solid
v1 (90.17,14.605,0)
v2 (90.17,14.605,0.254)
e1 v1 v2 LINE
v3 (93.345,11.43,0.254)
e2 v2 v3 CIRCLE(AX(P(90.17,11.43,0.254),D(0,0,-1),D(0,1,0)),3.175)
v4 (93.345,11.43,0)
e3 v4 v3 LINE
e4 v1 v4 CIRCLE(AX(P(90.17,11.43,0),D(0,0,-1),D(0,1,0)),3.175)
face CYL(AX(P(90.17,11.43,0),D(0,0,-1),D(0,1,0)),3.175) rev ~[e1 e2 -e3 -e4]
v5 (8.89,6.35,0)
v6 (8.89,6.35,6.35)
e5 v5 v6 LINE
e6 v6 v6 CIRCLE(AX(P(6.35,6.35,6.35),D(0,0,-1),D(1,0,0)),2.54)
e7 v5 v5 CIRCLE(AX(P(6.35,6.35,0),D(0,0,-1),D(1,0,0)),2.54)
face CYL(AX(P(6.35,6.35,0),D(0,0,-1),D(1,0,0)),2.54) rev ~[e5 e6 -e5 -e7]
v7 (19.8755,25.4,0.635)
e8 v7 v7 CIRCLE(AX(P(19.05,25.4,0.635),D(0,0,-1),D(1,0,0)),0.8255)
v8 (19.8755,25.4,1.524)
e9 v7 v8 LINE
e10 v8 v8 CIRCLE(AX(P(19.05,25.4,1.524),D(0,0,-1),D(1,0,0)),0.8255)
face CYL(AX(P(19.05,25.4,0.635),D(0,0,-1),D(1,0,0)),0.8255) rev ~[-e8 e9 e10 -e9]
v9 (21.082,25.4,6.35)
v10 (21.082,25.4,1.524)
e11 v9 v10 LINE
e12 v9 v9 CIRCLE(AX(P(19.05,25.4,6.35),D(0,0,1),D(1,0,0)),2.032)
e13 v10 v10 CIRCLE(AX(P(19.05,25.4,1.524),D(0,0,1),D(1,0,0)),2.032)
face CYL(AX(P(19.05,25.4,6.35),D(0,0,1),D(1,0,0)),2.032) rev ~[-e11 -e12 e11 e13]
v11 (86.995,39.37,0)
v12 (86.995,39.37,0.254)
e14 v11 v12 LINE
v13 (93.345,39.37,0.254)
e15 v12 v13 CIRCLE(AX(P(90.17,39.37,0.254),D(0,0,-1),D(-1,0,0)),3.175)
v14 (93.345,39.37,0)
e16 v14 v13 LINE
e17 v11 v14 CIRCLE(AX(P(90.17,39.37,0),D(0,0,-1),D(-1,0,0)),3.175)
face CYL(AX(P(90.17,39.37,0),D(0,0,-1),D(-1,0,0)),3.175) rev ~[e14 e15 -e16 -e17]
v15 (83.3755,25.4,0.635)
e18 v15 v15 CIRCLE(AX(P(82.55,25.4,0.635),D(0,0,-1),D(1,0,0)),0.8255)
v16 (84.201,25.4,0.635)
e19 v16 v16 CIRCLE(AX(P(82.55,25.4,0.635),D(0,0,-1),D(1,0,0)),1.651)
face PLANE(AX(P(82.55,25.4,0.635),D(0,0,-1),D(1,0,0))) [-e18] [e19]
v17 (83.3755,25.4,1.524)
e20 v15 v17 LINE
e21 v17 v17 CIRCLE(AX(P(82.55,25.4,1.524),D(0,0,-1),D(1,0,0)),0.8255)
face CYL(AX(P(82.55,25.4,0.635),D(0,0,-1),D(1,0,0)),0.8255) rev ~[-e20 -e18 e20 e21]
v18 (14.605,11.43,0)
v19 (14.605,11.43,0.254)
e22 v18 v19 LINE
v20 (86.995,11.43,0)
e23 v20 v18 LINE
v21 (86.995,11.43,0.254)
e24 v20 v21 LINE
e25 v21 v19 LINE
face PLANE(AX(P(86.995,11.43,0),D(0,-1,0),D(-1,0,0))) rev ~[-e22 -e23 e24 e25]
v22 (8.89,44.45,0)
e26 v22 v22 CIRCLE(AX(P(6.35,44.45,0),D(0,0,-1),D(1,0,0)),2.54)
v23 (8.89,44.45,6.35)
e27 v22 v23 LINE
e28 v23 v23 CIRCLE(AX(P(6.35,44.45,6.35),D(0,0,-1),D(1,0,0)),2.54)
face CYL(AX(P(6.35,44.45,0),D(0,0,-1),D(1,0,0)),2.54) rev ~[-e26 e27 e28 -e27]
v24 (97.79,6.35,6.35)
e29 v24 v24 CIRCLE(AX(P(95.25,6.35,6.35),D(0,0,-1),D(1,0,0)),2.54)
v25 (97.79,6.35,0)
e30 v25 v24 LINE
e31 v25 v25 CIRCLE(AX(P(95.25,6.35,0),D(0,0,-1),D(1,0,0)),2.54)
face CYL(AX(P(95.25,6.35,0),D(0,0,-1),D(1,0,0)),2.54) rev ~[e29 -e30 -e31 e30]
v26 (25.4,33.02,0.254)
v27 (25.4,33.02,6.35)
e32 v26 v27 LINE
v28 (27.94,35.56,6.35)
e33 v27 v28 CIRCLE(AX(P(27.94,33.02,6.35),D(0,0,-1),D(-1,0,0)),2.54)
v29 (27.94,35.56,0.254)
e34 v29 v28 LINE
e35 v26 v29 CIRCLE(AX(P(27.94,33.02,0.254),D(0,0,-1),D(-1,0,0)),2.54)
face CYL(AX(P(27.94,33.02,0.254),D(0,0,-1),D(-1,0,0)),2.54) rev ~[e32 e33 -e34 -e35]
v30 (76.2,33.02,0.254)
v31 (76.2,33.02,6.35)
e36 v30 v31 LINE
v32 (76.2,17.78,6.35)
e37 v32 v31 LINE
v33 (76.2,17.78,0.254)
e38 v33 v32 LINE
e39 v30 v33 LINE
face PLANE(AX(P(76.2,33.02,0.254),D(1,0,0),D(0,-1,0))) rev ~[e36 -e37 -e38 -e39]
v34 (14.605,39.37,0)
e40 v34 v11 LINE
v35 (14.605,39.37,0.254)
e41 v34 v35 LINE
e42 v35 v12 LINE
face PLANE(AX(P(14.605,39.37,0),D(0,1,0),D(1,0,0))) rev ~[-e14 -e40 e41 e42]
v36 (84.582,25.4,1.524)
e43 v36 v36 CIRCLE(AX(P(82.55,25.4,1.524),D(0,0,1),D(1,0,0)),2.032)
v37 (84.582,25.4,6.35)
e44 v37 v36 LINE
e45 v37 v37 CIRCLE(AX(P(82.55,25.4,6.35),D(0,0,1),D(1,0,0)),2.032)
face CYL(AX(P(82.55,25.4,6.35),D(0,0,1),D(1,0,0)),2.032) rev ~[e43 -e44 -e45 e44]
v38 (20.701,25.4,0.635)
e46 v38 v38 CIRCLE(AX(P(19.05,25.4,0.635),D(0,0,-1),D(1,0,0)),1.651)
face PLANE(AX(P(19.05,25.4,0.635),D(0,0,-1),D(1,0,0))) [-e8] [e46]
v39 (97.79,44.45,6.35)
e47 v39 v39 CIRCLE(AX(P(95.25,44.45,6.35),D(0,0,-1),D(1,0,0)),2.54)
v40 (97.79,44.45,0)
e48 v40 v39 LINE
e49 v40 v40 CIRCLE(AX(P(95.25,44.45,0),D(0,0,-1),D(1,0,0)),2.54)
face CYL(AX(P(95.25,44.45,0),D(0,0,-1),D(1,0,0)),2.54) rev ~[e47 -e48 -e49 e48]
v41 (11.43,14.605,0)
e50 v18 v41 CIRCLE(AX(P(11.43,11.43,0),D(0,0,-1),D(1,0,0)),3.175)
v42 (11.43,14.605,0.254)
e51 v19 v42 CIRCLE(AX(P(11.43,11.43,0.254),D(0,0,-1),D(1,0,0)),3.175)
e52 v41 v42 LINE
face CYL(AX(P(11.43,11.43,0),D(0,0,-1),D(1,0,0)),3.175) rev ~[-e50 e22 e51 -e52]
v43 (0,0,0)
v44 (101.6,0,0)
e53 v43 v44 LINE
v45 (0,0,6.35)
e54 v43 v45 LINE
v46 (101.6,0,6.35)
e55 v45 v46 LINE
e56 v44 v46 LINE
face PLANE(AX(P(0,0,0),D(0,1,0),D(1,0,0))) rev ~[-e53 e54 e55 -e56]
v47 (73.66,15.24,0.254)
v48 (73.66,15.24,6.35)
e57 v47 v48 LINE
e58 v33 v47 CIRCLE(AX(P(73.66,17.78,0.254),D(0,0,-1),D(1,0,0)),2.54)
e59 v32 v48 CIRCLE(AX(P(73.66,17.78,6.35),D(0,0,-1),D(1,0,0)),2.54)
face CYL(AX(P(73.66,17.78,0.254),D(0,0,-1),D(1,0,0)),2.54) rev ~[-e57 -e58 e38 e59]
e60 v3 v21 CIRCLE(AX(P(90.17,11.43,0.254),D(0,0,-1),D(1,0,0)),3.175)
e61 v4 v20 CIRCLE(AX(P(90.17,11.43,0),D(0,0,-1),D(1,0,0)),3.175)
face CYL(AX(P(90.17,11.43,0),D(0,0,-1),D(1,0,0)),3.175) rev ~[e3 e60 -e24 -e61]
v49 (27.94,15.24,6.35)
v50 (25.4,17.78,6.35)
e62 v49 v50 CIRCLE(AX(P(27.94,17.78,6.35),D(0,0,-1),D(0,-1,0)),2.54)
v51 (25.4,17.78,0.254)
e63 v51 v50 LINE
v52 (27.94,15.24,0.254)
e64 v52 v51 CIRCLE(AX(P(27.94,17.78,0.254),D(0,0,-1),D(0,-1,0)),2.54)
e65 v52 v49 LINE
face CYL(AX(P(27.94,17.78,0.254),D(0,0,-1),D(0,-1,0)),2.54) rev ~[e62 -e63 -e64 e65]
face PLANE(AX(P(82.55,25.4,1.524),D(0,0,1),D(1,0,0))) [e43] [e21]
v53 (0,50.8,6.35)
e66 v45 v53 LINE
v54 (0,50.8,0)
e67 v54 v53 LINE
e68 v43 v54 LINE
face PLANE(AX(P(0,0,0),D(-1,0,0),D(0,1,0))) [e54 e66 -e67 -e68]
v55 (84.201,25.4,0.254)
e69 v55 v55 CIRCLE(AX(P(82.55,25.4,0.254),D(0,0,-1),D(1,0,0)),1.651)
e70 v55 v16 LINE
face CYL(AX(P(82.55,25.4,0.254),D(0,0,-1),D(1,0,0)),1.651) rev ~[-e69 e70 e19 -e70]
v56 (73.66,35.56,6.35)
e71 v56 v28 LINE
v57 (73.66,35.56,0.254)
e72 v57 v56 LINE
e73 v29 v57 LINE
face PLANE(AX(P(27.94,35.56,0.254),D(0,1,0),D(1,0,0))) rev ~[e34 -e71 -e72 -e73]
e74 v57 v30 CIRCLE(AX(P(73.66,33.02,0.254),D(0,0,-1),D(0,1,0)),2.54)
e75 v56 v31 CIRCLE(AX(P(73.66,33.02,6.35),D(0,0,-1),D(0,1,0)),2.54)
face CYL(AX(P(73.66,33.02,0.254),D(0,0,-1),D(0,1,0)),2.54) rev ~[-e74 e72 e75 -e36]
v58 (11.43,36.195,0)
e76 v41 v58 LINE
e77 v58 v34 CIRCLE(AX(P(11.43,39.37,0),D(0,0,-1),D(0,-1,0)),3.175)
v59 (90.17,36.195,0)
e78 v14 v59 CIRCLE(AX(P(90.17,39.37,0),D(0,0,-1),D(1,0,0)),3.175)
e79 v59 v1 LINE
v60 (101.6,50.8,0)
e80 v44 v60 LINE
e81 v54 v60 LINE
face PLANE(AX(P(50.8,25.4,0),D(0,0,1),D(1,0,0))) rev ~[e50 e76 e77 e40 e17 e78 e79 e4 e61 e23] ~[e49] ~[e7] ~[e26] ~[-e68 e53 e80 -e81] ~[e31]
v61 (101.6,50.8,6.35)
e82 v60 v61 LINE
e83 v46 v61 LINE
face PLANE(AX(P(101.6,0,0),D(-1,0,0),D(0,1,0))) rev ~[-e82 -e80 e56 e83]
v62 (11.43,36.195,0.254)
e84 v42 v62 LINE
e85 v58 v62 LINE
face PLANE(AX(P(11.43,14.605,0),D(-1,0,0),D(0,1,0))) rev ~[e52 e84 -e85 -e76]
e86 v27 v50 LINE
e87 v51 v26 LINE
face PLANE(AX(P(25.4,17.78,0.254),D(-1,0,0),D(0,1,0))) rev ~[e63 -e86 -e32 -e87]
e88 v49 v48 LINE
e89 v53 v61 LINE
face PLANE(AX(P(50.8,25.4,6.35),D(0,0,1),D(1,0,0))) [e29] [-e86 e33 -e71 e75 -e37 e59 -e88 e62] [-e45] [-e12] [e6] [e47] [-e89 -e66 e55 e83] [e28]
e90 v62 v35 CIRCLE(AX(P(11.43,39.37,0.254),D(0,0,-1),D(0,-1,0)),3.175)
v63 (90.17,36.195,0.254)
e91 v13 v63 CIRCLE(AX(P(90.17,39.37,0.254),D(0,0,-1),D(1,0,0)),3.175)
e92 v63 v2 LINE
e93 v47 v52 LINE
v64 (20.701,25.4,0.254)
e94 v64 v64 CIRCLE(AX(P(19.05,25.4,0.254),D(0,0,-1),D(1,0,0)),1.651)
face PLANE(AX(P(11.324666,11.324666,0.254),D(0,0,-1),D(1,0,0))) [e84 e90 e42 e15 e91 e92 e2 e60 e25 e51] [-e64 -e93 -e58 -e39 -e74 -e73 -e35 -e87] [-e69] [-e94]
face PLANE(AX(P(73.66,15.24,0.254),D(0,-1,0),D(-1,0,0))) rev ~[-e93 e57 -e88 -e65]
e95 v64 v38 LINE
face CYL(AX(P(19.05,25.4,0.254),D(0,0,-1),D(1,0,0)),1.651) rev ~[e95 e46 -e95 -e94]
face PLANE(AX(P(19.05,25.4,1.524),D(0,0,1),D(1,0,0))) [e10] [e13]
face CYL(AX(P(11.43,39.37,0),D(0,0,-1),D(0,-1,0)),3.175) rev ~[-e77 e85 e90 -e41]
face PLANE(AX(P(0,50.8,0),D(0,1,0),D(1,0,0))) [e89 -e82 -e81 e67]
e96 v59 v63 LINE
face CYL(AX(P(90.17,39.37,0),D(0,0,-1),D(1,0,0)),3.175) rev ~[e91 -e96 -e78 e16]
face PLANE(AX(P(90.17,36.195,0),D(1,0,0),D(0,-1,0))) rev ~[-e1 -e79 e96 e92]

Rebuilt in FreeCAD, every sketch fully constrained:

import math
import FreeCAD as App
import Part
import Sketcher

V = App.Vector
Q = App.Units.Quantity


def add_polygon(sketch, points):
    """Adds a closed chain of lines whose ends are joined by coincident constraints."""
    first, n = sketch.GeometryCount, len(points)
    for a, b in zip(points, points[1:] + points[:1]):
        sketch.addGeometry(Part.LineSegment(App.Vector(*a, 0), App.Vector(*b, 0)), False)
    for i in range(n):
        sketch.addConstraint(Sketcher.Constraint("Coincident", first + i, 2, first + (i + 1) % n, 1))

doc = App.newDocument("Part")
params = doc.addObject("Spreadsheet::Sheet", "Params")
for row, (alias, value) in enumerate([
    ("sketch1_width", "4 in"),
    ("sketch1_height", "2 in"),
    ("pad1_length", "0.25 in"),
    ("sketch2_radius", "0.125 in"),
    ("sketch2_width", "2.85 in"),
    ("sketch2_height", "0.85 in"),
    ("pocket1_length", "0.01 in"),
    ("sketch3_radius", "0.1 in"),
    ("sketch3_width", "1.8 in"),
    ("sketch3_height", "0.6 in"),
    ("sketch4_diameter", "0.13 in"),
    ("pocket3_length", "0.015 in"),
    ("sketch5_diameter", "0.16 in"),
    ("pocket4_length", "0.19 in"),
    ("sketch6_diameter", "0.065 in"),
    ("sketch7_diameter", "0.2 in"),
], start=1):
    params.set(f"A{row}", alias)
    params.set(f"B{row}", "=" + value)
    params.setAlias(f"B{row}", alias)

body = doc.addObject("PartDesign::Body", "Body")

# Sketch on XY plane
sketch1 = body.newObject("Sketcher::SketchObject", "Sketch")
sketch1.AttachmentSupport = (doc.getObject("XY_Plane"), [""])
sketch1.MapMode = "FlatFace"
add_polygon(sketch1, [(0, 50.8), (0, 0), (101.6, 0), (101.6, 50.8)])  # lines 0-3
sketch1.addConstraint([
    Sketcher.Constraint("Vertical", 0),
    Sketcher.Constraint("Horizontal", 1),
    Sketcher.Constraint("Vertical", 2),
    Sketcher.Constraint("Horizontal", 3),
    Sketcher.Constraint("Coincident", 0, 2, -1, 1),
    Sketcher.Constraint("DistanceX", 1, 1, 1, 2, Q("4 in")),
    Sketcher.Constraint("DistanceY", 0, 2, 0, 1, Q("2 in")),
])
sketch1.setExpression("Constraints[9]", "Params.sketch1_width")
sketch1.setExpression("Constraints[10]", "Params.sketch1_height")
pad1 = body.newObject("PartDesign::Pad", "Pad")
pad1.Profile = sketch1
pad1.setExpression("Length", "Params.pad1_length")

# Sketch on XY plane
sketch2 = body.newObject("Sketcher::SketchObject", "Sketch001")
sketch2.AttachmentSupport = (doc.getObject("XY_Plane"), [""])
sketch2.MapMode = "FlatFace"
sketch2.addGeometry([
    Part.ArcOfCircle(Part.Circle(V(11.43, 11.43, 0), V(0, 0, 1), 3.175), math.radians(90), math.radians(360)),  # 0
    Part.LineSegment(V(11.43, 14.605, 0), V(11.43, 36.195, 0)),  # 1
    Part.ArcOfCircle(Part.Circle(V(11.43, 39.37, 0), V(0, 0, 1), 3.175), math.radians(0), math.radians(270)),  # 2
    Part.LineSegment(V(14.605, 39.37, 0), V(86.995, 39.37, 0)),  # 3
    Part.ArcOfCircle(Part.Circle(V(90.17, 39.37, 0), V(0, 0, 1), 3.175), math.radians(0), math.radians(180)),  # 4
    Part.ArcOfCircle(Part.Circle(V(90.17, 39.37, 0), V(0, 0, 1), 3.175), math.radians(-90), math.radians(0)),  # 5
    Part.LineSegment(V(90.17, 36.195, 0), V(90.17, 14.605, 0)),  # 6
    Part.ArcOfCircle(Part.Circle(V(90.17, 11.43, 0), V(0, 0, 1), 3.175), math.radians(0), math.radians(90)),  # 7
    Part.ArcOfCircle(Part.Circle(V(90.17, 11.43, 0), V(0, 0, 1), 3.175), math.radians(180), math.radians(360)),  # 8
    Part.LineSegment(V(86.995, 11.43, 0), V(14.605, 11.43, 0)),  # 9
], False)
sketch2.addConstraint([
    Sketcher.Constraint("Coincident", 0, 1, 1, 1),
    Sketcher.Constraint("Coincident", 1, 2, 2, 2),
    Sketcher.Constraint("Coincident", 2, 1, 3, 1),
    Sketcher.Constraint("Coincident", 3, 2, 4, 2),
    Sketcher.Constraint("Tangent", 4, 1, 5, 2),
    Sketcher.Constraint("Coincident", 5, 1, 6, 1),
    Sketcher.Constraint("Coincident", 6, 2, 7, 2),
    Sketcher.Constraint("Tangent", 7, 1, 8, 2),
    Sketcher.Constraint("Coincident", 8, 1, 9, 1),
    Sketcher.Constraint("Coincident", 9, 2, 0, 2),
    Sketcher.Constraint("Vertical", 1),
    Sketcher.Constraint("Horizontal", 3),
    Sketcher.Constraint("Vertical", 6),
    Sketcher.Constraint("Horizontal", 9),
    Sketcher.Constraint("Equal", 0, 2),
    Sketcher.Constraint("Equal", 2, 4),
    Sketcher.Constraint("Equal", 4, 5),
    Sketcher.Constraint("Equal", 5, 7),
    Sketcher.Constraint("Equal", 7, 8),
    Sketcher.Constraint("Horizontal", 2, 3, 4, 3),
    Sketcher.Constraint("Horizontal", 0, 3, 7, 3),
    Sketcher.Constraint("Horizontal", 5, 3, 2, 1),
    Sketcher.Constraint("Horizontal", 3, 2, 4, 1),
    Sketcher.Constraint("Horizontal", 8, 3, 7, 1),
    Sketcher.Constraint("Horizontal", 7, 1, 8, 1),
    Sketcher.Constraint("Vertical", 0, 3, 2, 3),
    Sketcher.Constraint("Vertical", 5, 3, 7, 3),
    Sketcher.Constraint("Vertical", 2, 3, 0, 1),
    Sketcher.Constraint("Vertical", 8, 3, 5, 1),
    Sketcher.Constraint("Radius", 0, Q("0.125 in")),
    Sketcher.Constraint("DistanceX", 3, 1, 3, 2, Q("2.85 in")),
    Sketcher.Constraint("DistanceY", 1, 1, 1, 2, Q("0.85 in")),
    Sketcher.Constraint("DistanceX", -1, 1, 0, 3, Q("0.45 in")),
    Sketcher.Constraint("DistanceY", -1, 1, 0, 3, Q("0.45 in")),
])
sketch2.setExpression("Constraints[29]", "Params.sketch2_radius")
sketch2.setExpression("Constraints[30]", "Params.sketch2_width")
sketch2.setExpression("Constraints[31]", "Params.sketch2_height")
pocket1 = body.newObject("PartDesign::Pocket", "Pocket")
pocket1.Profile = sketch2
pocket1.setExpression("Length", "Params.pocket1_length")
pocket1.Reversed = True

# Sketch on XY plane
sketch3 = body.newObject("Sketcher::SketchObject", "Sketch002")
sketch3.AttachmentSupport = (doc.getObject("XY_Plane"), [""])
sketch3.MapMode = "FlatFace"
sketch3.AttachmentOffset = App.Placement(V(0, 0, 0.01 * 25.4), App.Rotation())
sketch3.addGeometry([
    Part.ArcOfCircle(Part.Circle(V(27.94, 33.02, 0), V(0, 0, 1), 2.54), math.radians(90), math.radians(180)),  # 0
    Part.LineSegment(V(27.94, 35.56, 0), V(73.66, 35.56, 0)),  # 1
    Part.ArcOfCircle(Part.Circle(V(73.66, 33.02, 0), V(0, 0, 1), 2.54), math.radians(0), math.radians(90)),  # 2
    Part.LineSegment(V(76.2, 33.02, 0), V(76.2, 17.78, 0)),  # 3
    Part.ArcOfCircle(Part.Circle(V(73.66, 17.78, 0), V(0, 0, 1), 2.54), math.radians(-90), math.radians(0)),  # 4
    Part.LineSegment(V(73.66, 15.24, 0), V(27.94, 15.24, 0)),  # 5
    Part.ArcOfCircle(Part.Circle(V(27.94, 17.78, 0), V(0, 0, 1), 2.54), math.radians(180), math.radians(270)),  # 6
    Part.LineSegment(V(25.4, 17.78, 0), V(25.4, 33.02, 0)),  # 7
], False)
sketch3.addConstraint([
    Sketcher.Constraint("Tangent", 0, 1, 1, 1),
    Sketcher.Constraint("Tangent", 1, 2, 2, 2),
    Sketcher.Constraint("Tangent", 2, 1, 3, 1),
    Sketcher.Constraint("Tangent", 3, 2, 4, 2),
    Sketcher.Constraint("Tangent", 4, 1, 5, 1),
    Sketcher.Constraint("Tangent", 5, 2, 6, 2),
    Sketcher.Constraint("Tangent", 6, 1, 7, 1),
    Sketcher.Constraint("Tangent", 7, 2, 0, 2),
    Sketcher.Constraint("Horizontal", 1),
    Sketcher.Constraint("Vertical", 3),
    Sketcher.Constraint("Horizontal", 5),
    Sketcher.Constraint("Vertical", 7),
    Sketcher.Constraint("Equal", 0, 2),
    Sketcher.Constraint("Equal", 2, 4),
    Sketcher.Constraint("Equal", 4, 6),
    Sketcher.Constraint("Radius", 0, Q("0.1 in")),
    Sketcher.Constraint("DistanceX", 1, 1, 1, 2, Q("1.8 in")),
    Sketcher.Constraint("DistanceY", 3, 2, 3, 1, Q("0.6 in")),
    Sketcher.Constraint("DistanceX", -1, 1, 2, 1, Q("3 in")),
    Sketcher.Constraint("DistanceY", -1, 1, 0, 3, Q("1.3 in")),
])
sketch3.setExpression("Constraints[15]", "Params.sketch3_radius")
sketch3.setExpression("Constraints[16]", "Params.sketch3_width")
sketch3.setExpression("Constraints[17]", "Params.sketch3_height")
pocket2 = body.newObject("PartDesign::Pocket", "Pocket001")
pocket2.Profile = sketch3
pocket2.Type = "ThroughAll"
pocket2.Midplane = True

# Sketch on XY plane
sketch4 = body.newObject("Sketcher::SketchObject", "Sketch003")
sketch4.AttachmentSupport = (doc.getObject("XY_Plane"), [""])
sketch4.MapMode = "FlatFace"
sketch4.AttachmentOffset = App.Placement(V(0, 0, 0.01 * 25.4), App.Rotation())
sketch4.addGeometry([
    Part.Circle(V(82.55, 25.4, 0), V(0, 0, 1), 1.651),
    Part.Circle(V(19.05, 25.4, 0), V(0, 0, 1), 1.651),
], False)
sketch4.addConstraint([
    Sketcher.Constraint("Equal", 0, 1),
    Sketcher.Constraint("Horizontal", 0, 3, 1, 3),
    Sketcher.Constraint("Diameter", 0, Q("0.13 in")),
    Sketcher.Constraint("DistanceY", -1, 1, 0, 3, Q("1 in")),
    Sketcher.Constraint("DistanceX", 1, 3, 0, 3, Q("2.5 in")),
    Sketcher.Constraint("DistanceX", -1, 1, 0, 3, Q("3.25 in")),
])
sketch4.setExpression("Constraints[2]", "Params.sketch4_diameter")
pocket3 = body.newObject("PartDesign::Pocket", "Pocket002")
pocket3.Profile = sketch4
pocket3.setExpression("Length", "Params.pocket3_length")
pocket3.Reversed = True

# Sketch on XY plane
sketch5 = body.newObject("Sketcher::SketchObject", "Sketch004")
sketch5.AttachmentSupport = (doc.getObject("XY_Plane"), [""])
sketch5.MapMode = "FlatFace"
sketch5.AttachmentOffset = App.Placement(V(0, 0, 0.25 * 25.4), App.Rotation())
sketch5.addGeometry([
    Part.Circle(V(19.05, 25.4, 0), V(0, 0, 1), 2.032),
    Part.Circle(V(82.55, 25.4, 0), V(0, 0, 1), 2.032),
], False)
sketch5.addConstraint([
    Sketcher.Constraint("Equal", 0, 1),
    Sketcher.Constraint("Horizontal", 0, 3, 1, 3),
    Sketcher.Constraint("Diameter", 0, Q("0.16 in")),
    Sketcher.Constraint("DistanceY", -1, 1, 0, 3, Q("1 in")),
    Sketcher.Constraint("DistanceX", 0, 3, 1, 3, Q("2.5 in")),
    Sketcher.Constraint("DistanceX", -1, 1, 0, 3, Q("0.75 in")),
])
sketch5.setExpression("Constraints[2]", "Params.sketch5_diameter")
pocket4 = body.newObject("PartDesign::Pocket", "Pocket003")
pocket4.Profile = sketch5
pocket4.setExpression("Length", "Params.pocket4_length")

# Sketch on XY plane
sketch6 = body.newObject("Sketcher::SketchObject", "Sketch005")
sketch6.AttachmentSupport = (doc.getObject("XY_Plane"), [""])
sketch6.MapMode = "FlatFace"
sketch6.AttachmentOffset = App.Placement(V(0, 0, 0.025 * 25.4), App.Rotation())
sketch6.addGeometry([
    Part.Circle(V(19.05, 25.4, 0), V(0, 0, 1), 0.8255),
    Part.Circle(V(82.55, 25.4, 0), V(0, 0, 1), 0.8255),
], False)
sketch6.addConstraint([
    Sketcher.Constraint("Equal", 0, 1),
    Sketcher.Constraint("Horizontal", 0, 3, 1, 3),
    Sketcher.Constraint("Diameter", 0, Q("0.065 in")),
    Sketcher.Constraint("DistanceY", -1, 1, 0, 3, Q("1 in")),
    Sketcher.Constraint("DistanceX", 0, 3, 1, 3, Q("2.5 in")),
    Sketcher.Constraint("DistanceX", -1, 1, 0, 3, Q("0.75 in")),
])
sketch6.setExpression("Constraints[2]", "Params.sketch6_diameter")
pocket5 = body.newObject("PartDesign::Pocket", "Pocket004")
pocket5.Profile = sketch6
pocket5.Type = "ThroughAll"
pocket5.Midplane = True

# Sketch on XY plane
sketch7 = body.newObject("Sketcher::SketchObject", "Sketch006")
sketch7.AttachmentSupport = (doc.getObject("XY_Plane"), [""])
sketch7.MapMode = "FlatFace"
sketch7.addGeometry([
    Part.Circle(V(95.25, 6.35, 0), V(0, 0, 1), 2.54),
    Part.Circle(V(6.35, 6.35, 0), V(0, 0, 1), 2.54),
    Part.Circle(V(6.35, 44.45, 0), V(0, 0, 1), 2.54),
    Part.Circle(V(95.25, 44.45, 0), V(0, 0, 1), 2.54),
], False)
sketch7.addConstraint([
    Sketcher.Constraint("Equal", 0, 1),
    Sketcher.Constraint("Equal", 1, 2),
    Sketcher.Constraint("Equal", 2, 3),
    Sketcher.Constraint("Horizontal", 0, 3, 1, 3),
    Sketcher.Constraint("Horizontal", 2, 3, 3, 3),
    Sketcher.Constraint("Vertical", 1, 3, 2, 3),
    Sketcher.Constraint("Vertical", 0, 3, 3, 3),
    Sketcher.Constraint("Diameter", 0, Q("0.2 in")),
    Sketcher.Constraint("DistanceX", 1, 3, 0, 3, Q("3.5 in")),
    Sketcher.Constraint("DistanceY", 1, 3, 2, 3, Q("1.5 in")),
    Sketcher.Constraint("DistanceX", -1, 1, 0, 3, Q("3.75 in")),
    Sketcher.Constraint("DistanceY", -1, 1, 0, 3, Q("0.25 in")),
])
sketch7.setExpression("Constraints[7]", "Params.sketch7_diameter")
pocket6 = body.newObject("PartDesign::Pocket", "Pocket005")
pocket6.Profile = sketch7
pocket6.Type = "ThroughAll"
pocket6.Reversed = True

doc.recompute()
